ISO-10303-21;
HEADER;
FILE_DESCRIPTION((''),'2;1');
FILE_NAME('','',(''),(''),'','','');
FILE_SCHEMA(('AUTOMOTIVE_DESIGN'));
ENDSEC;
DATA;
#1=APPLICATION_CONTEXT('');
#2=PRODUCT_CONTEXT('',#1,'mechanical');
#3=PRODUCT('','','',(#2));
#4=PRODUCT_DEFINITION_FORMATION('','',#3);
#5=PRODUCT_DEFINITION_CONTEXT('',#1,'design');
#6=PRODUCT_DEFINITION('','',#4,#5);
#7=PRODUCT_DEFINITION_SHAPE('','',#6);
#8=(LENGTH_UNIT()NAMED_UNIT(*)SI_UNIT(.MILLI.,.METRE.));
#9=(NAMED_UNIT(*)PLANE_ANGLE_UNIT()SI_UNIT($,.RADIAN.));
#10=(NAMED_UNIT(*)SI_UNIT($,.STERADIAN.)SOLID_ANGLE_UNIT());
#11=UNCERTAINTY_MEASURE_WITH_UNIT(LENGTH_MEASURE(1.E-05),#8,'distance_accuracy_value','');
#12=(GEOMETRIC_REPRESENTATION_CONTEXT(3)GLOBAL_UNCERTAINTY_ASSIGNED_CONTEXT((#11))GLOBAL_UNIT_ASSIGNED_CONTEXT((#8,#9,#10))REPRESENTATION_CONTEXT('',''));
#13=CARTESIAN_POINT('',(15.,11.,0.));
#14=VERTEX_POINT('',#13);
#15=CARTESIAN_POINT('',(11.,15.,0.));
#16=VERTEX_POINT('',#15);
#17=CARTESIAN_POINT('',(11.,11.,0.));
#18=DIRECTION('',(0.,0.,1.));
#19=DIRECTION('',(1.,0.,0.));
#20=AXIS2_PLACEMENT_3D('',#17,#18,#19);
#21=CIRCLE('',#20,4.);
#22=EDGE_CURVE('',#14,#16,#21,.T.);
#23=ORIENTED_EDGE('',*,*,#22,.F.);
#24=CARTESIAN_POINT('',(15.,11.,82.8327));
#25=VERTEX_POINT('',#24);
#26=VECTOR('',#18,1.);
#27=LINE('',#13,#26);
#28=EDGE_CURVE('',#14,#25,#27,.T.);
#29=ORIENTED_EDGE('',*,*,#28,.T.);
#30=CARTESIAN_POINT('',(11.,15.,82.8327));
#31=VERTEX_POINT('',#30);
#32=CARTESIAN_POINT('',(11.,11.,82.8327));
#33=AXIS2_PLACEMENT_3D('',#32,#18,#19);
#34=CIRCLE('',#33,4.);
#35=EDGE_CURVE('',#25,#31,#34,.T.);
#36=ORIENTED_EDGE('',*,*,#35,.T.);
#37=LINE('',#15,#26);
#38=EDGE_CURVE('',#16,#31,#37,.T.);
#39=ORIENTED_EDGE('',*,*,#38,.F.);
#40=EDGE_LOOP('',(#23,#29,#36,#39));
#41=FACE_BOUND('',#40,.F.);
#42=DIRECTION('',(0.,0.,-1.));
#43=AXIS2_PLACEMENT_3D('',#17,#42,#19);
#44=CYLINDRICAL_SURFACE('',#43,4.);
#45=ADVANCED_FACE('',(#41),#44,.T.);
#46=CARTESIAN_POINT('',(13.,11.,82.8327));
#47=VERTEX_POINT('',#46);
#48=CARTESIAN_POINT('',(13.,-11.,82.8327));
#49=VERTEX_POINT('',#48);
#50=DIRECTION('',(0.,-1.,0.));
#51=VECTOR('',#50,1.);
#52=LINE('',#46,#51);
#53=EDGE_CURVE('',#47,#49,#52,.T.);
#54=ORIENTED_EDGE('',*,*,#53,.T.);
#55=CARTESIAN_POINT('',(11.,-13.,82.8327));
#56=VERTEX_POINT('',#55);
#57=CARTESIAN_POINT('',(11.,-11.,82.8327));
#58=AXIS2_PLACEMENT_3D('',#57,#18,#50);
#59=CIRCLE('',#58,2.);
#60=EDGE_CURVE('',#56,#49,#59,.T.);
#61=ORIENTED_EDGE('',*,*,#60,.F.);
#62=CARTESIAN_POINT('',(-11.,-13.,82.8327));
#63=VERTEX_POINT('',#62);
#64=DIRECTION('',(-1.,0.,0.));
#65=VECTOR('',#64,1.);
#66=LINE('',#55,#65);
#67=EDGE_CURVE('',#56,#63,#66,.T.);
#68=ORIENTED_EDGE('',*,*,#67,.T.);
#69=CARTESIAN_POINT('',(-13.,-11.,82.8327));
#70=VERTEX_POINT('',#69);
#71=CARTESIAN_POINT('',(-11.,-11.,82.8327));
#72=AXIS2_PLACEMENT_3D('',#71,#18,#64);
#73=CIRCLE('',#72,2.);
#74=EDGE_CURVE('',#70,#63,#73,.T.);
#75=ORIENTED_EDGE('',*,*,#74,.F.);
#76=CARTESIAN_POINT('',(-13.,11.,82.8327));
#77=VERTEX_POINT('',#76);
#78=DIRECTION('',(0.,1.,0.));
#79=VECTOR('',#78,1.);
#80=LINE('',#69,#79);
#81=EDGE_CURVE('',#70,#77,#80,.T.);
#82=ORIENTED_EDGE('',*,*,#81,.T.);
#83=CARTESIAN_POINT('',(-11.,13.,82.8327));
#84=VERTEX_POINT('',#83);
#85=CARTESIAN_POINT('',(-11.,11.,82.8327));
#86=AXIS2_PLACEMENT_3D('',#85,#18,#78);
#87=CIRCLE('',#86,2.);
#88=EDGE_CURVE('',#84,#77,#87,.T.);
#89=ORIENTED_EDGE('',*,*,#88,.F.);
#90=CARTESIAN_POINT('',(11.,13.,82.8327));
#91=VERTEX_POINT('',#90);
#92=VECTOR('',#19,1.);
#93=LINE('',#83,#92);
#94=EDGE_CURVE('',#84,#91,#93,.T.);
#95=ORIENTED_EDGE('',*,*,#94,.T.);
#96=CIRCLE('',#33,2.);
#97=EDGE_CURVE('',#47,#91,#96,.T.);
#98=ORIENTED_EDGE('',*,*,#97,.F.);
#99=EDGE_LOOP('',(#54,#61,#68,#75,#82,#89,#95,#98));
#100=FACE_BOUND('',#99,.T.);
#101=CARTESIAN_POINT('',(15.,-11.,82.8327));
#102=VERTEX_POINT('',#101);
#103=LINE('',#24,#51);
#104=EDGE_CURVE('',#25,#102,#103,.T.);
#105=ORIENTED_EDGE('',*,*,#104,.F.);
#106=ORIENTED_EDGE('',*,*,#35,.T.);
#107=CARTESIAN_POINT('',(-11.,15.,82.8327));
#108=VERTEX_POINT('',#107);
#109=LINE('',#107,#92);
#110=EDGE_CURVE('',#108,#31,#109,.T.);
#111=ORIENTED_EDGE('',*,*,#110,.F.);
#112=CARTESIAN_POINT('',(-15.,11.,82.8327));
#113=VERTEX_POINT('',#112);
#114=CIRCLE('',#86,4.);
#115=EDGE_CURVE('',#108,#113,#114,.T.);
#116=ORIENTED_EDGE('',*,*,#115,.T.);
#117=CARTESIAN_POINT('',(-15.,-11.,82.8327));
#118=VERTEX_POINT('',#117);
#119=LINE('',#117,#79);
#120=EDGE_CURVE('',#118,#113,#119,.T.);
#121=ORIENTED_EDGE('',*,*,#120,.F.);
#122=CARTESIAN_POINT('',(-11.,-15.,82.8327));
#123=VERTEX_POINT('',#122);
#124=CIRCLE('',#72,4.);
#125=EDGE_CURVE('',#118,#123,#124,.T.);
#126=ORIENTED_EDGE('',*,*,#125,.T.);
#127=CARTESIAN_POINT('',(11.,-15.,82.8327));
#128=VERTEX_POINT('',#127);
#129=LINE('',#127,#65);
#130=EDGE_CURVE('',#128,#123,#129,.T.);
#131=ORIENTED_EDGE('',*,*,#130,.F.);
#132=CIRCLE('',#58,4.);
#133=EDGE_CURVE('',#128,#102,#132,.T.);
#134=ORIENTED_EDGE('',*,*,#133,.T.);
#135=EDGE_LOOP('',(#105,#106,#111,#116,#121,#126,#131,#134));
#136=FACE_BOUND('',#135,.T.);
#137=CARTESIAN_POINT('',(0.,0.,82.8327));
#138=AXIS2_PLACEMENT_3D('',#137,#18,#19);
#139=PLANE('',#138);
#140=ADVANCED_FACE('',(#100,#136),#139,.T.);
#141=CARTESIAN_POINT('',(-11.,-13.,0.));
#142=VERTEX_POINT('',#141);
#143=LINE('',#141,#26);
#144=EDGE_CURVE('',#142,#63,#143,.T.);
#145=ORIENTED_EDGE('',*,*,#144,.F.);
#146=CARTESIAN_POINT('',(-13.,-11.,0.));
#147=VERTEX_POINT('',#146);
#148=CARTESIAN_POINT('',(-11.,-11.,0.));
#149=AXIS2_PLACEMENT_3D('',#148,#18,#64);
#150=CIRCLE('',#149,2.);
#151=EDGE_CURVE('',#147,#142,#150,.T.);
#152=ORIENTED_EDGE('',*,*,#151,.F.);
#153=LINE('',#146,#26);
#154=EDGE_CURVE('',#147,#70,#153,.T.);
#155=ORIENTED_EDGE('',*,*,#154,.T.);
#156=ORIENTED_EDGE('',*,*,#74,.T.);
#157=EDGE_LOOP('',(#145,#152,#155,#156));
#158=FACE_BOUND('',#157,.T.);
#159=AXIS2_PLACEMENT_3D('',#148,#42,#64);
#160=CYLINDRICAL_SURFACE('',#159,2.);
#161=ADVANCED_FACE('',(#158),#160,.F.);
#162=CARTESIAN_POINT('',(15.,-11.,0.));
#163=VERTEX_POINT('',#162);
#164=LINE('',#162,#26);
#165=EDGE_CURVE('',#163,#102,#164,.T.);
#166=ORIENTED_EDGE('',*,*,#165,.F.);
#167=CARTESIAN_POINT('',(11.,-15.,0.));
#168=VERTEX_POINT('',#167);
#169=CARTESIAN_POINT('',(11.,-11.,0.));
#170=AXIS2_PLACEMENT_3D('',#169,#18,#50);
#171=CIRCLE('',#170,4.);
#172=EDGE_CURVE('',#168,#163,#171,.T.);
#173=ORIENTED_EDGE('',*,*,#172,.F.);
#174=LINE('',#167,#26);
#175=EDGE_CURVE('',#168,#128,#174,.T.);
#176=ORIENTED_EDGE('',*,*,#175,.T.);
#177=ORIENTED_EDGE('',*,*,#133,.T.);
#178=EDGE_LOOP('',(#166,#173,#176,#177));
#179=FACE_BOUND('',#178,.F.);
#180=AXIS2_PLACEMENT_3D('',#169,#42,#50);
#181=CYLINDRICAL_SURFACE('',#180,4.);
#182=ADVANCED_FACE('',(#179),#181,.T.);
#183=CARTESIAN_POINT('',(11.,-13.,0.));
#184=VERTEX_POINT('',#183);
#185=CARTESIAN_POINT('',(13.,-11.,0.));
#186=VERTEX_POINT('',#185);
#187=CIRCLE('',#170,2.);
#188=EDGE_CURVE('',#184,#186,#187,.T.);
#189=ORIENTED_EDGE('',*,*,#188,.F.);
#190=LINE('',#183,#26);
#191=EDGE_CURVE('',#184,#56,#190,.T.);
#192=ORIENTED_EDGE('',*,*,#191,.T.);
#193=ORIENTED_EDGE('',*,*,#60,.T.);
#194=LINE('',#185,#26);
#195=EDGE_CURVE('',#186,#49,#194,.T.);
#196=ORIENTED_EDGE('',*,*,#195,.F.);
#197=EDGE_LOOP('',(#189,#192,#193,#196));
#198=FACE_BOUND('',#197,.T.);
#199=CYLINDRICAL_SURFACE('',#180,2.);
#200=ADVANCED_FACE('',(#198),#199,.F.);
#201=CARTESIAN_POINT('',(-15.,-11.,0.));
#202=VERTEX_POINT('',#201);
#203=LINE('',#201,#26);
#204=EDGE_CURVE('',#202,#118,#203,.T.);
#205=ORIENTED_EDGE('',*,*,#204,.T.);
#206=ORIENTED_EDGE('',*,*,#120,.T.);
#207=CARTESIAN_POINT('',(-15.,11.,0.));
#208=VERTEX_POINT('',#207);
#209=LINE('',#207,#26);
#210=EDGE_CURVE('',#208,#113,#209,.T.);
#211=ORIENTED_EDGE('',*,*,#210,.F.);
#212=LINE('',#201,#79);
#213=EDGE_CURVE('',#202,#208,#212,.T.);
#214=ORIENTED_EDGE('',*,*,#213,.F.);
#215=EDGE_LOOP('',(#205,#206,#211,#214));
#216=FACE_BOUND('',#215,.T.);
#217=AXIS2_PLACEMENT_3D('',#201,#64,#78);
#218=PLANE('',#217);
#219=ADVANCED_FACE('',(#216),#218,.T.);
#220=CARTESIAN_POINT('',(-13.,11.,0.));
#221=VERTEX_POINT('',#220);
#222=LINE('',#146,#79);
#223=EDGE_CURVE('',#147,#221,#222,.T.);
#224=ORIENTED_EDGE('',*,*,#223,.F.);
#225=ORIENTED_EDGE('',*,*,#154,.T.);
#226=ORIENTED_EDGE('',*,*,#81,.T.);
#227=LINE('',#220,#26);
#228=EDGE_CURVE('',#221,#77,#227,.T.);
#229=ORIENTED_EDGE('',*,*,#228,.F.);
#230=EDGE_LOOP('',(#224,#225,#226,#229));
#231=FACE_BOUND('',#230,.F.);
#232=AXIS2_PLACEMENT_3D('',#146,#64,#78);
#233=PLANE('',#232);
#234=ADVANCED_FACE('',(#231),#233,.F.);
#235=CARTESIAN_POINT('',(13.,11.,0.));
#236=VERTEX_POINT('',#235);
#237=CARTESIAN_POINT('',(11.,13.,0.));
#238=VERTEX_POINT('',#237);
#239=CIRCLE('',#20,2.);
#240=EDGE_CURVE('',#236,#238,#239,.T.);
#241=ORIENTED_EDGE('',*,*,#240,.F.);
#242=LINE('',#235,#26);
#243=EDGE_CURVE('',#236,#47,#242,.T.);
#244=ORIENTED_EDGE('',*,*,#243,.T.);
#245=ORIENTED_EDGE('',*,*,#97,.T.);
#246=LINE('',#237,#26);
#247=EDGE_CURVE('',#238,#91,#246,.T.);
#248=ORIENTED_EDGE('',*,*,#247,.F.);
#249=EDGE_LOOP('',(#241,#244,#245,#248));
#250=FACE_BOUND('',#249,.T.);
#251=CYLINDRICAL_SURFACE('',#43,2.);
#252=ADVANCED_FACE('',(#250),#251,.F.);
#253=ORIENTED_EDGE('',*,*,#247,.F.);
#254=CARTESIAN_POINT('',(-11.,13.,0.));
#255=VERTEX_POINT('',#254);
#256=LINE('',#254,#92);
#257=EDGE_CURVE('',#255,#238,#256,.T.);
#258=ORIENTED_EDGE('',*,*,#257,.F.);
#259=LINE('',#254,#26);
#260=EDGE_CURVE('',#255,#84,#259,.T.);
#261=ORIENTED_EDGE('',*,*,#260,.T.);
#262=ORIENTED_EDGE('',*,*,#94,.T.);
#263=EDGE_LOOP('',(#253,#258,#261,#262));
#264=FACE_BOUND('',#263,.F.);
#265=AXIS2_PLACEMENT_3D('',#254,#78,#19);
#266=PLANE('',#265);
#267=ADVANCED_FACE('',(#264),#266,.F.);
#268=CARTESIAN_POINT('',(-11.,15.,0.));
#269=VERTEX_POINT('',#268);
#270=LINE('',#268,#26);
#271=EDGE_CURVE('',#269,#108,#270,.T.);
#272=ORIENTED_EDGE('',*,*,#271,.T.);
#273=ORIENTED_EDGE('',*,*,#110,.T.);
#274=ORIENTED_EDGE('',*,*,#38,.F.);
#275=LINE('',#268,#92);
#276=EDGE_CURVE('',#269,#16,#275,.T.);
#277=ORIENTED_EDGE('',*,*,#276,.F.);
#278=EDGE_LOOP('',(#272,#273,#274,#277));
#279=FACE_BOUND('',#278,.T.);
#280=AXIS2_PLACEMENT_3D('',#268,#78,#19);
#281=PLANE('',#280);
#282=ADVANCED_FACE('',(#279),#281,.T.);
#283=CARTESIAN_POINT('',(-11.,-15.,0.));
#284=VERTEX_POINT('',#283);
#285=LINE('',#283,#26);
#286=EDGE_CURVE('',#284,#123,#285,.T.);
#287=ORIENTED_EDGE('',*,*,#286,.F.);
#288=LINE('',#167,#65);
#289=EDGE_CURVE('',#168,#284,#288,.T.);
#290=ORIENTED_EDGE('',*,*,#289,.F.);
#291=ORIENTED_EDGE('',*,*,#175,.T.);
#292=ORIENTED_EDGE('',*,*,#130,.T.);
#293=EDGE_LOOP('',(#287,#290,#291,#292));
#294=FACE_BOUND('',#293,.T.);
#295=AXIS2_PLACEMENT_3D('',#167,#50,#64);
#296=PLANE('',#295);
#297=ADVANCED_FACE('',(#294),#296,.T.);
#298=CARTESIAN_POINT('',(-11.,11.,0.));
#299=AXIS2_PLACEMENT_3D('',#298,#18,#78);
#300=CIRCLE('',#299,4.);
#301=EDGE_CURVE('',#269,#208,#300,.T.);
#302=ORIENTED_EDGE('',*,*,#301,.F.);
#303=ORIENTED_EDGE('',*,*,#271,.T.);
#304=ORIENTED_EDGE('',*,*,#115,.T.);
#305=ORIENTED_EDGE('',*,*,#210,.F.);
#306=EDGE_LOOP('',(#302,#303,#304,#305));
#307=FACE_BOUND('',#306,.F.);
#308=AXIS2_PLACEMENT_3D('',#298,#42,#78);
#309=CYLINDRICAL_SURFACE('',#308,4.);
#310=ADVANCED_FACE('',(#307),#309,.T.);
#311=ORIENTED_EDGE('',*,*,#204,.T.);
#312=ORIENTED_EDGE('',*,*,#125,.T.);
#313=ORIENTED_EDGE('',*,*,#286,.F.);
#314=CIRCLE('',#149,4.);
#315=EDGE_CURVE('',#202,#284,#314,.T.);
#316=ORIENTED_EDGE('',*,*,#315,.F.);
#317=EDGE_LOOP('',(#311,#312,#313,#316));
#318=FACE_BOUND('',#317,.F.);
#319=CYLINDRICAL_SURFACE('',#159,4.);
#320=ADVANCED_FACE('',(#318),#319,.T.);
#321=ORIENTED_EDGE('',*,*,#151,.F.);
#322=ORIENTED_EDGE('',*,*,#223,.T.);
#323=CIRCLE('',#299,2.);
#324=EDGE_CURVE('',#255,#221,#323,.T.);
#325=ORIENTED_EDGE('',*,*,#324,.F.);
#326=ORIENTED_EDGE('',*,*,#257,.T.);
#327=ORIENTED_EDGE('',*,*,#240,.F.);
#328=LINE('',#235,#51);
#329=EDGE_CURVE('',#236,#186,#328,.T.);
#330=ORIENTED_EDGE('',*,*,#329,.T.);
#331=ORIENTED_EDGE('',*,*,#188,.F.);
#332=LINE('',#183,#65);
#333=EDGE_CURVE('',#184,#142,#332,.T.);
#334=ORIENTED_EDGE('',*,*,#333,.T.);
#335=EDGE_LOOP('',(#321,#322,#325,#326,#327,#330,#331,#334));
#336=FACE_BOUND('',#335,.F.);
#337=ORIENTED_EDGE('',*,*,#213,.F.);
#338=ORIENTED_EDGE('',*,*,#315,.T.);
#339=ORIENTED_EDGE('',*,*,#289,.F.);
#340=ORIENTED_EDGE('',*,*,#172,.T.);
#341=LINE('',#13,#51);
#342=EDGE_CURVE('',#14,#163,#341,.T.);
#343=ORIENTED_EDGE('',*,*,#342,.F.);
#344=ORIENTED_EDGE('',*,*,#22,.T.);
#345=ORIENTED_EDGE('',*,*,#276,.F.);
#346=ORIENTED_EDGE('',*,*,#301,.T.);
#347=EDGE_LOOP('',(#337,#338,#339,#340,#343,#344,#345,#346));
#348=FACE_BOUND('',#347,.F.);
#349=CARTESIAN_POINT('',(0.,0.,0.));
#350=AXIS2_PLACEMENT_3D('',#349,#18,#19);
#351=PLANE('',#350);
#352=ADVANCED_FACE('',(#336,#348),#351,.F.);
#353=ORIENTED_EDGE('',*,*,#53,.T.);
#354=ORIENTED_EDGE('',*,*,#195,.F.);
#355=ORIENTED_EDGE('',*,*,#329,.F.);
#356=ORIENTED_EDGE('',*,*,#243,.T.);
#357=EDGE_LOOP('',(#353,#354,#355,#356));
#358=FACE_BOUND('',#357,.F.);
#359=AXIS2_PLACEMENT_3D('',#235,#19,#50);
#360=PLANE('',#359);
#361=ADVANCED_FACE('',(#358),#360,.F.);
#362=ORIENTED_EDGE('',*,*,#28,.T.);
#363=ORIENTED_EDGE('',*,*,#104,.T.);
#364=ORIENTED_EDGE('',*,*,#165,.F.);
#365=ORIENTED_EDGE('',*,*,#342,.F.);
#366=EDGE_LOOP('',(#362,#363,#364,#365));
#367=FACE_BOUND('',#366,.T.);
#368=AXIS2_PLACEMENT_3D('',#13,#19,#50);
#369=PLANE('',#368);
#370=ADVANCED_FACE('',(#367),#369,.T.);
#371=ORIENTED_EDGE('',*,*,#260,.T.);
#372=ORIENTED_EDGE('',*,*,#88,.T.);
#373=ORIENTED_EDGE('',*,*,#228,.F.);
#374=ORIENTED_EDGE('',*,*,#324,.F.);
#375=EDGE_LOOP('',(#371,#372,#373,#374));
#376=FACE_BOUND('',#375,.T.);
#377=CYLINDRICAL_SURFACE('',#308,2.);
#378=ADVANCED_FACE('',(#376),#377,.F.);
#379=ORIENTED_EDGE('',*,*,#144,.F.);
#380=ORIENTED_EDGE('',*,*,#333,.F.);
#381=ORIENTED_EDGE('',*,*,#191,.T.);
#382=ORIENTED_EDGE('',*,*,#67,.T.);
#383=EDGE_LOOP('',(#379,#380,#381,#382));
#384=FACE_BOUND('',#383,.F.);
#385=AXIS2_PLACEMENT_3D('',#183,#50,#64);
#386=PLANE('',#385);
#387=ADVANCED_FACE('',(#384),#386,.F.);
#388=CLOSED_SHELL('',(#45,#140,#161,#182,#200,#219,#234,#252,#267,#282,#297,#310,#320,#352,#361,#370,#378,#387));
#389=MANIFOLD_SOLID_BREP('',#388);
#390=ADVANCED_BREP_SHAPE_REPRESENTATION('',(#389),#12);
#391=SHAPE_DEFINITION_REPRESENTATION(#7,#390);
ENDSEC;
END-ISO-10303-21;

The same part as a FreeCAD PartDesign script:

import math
import FreeCAD as App
import Part
import Sketcher
Q = App.Units.Quantity

doc = App.newDocument("Part")
params = doc.addObject("Spreadsheet::Sheet", "Params")
for row, (alias, value) in enumerate([
    ("sketch1_radius", "4 mm"),
    ("sketch1_radius2", "2 mm"),
    ("pad1_length", "82.8327 mm"),
], start=1):
    params.set(f"A{row}", alias)
    params.set(f"B{row}", "=" + value)
    params.setAlias(f"B{row}", alias)

body = doc.addObject("PartDesign::Body", "Body")

sketch1 = body.newObject("Sketcher::SketchObject", "Sketch")
sketch1.AttachmentSupport = (doc.getObject("XY_Plane"), [""])
sketch1.MapMode = "FlatFace"
sketch1.addGeometry([
    Part.LineSegment(App.Vector(-15, 11, 0), App.Vector(-15, -11, 0)),
    Part.ArcOfCircle(Part.Circle(App.Vector(-11, -11, 0), App.Vector(0, 0, 1), 4), math.radians(180), math.radians(270)),
    Part.LineSegment(App.Vector(-11, -15, 0), App.Vector(11, -15, 0)),
    Part.ArcOfCircle(Part.Circle(App.Vector(11, -11, 0), App.Vector(0, 0, 1), 4), math.radians(-90), math.radians(0)),
    Part.LineSegment(App.Vector(15, -11, 0), App.Vector(15, 11, 0)),
    Part.ArcOfCircle(Part.Circle(App.Vector(11, 11, 0), App.Vector(0, 0, 1), 4), math.radians(0), math.radians(90)),
    Part.LineSegment(App.Vector(11, 15, 0), App.Vector(-11, 15, 0)),
    Part.ArcOfCircle(Part.Circle(App.Vector(-11, 11, 0), App.Vector(0, 0, 1), 4), math.radians(90), math.radians(180)),
    Part.ArcOfCircle(Part.Circle(App.Vector(-11, 11, 0), App.Vector(0, 0, 1), 2), math.radians(90), math.radians(180)),
    Part.LineSegment(App.Vector(-11, 13, 0), App.Vector(11, 13, 0)),
    Part.ArcOfCircle(Part.Circle(App.Vector(11, 11, 0), App.Vector(0, 0, 1), 2), math.radians(0), math.radians(90)),
    Part.LineSegment(App.Vector(13, 11, 0), App.Vector(13, -11, 0)),
    Part.ArcOfCircle(Part.Circle(App.Vector(11, -11, 0), App.Vector(0, 0, 1), 2), math.radians(-90), math.radians(0)),
    Part.LineSegment(App.Vector(11, -13, 0), App.Vector(-11, -13, 0)),
    Part.ArcOfCircle(Part.Circle(App.Vector(-11, -11, 0), App.Vector(0, 0, 1), 2), math.radians(180), math.radians(270)),
    Part.LineSegment(App.Vector(-13, -11, 0), App.Vector(-13, 11, 0)),
], False)
sketch1.addConstraint([
    Sketcher.Constraint("Tangent", 0, 2, 1, 1),
    Sketcher.Constraint("Tangent", 1, 2, 2, 1),
    Sketcher.Constraint("Tangent", 2, 2, 3, 1),
    Sketcher.Constraint("Tangent", 3, 2, 4, 1),
    Sketcher.Constraint("Tangent", 4, 2, 5, 1),
    Sketcher.Constraint("Tangent", 5, 2, 6, 1),
    Sketcher.Constraint("Tangent", 6, 2, 7, 1),
    Sketcher.Constraint("Tangent", 7, 2, 0, 1),
    Sketcher.Constraint("Tangent", 8, 1, 9, 1),
    Sketcher.Constraint("Tangent", 9, 2, 10, 2),
    Sketcher.Constraint("Tangent", 10, 1, 11, 1),
    Sketcher.Constraint("Tangent", 11, 2, 12, 2),
    Sketcher.Constraint("Tangent", 12, 1, 13, 1),
    Sketcher.Constraint("Tangent", 13, 2, 14, 2),
    Sketcher.Constraint("Tangent", 14, 1, 15, 1),
    Sketcher.Constraint("Tangent", 15, 2, 8, 2),
    Sketcher.Constraint("Vertical", 0),
    Sketcher.Constraint("Horizontal", 2),
    Sketcher.Constraint("Vertical", 4),
    Sketcher.Constraint("Horizontal", 6),
    Sketcher.Constraint("Horizontal", 9),
    Sketcher.Constraint("Vertical", 11),
    Sketcher.Constraint("Horizontal", 13),
    Sketcher.Constraint("Vertical", 15),
    Sketcher.Constraint("Coincident", 8, 3, 7, 3),
    Sketcher.Constraint("Coincident", 10, 3, 5, 3),
    Sketcher.Constraint("Coincident", 12, 3, 3, 3),
    Sketcher.Constraint("Equal", 1, 3),
    Sketcher.Constraint("Equal", 3, 5),
    Sketcher.Constraint("Equal", 5, 7),
    Sketcher.Constraint("Equal", 12, 14),
    Sketcher.Constraint("Symmetric", 1, 3, 5, 3, -1, 1),
    Sketcher.Constraint("Equal", 13, 0),
    Sketcher.Constraint("Radius", 1, Q("4 mm")),
    Sketcher.Constraint("Radius", 8, Q("2 mm")),
    Sketcher.Constraint("DistanceX", 0, 2, -1, 1, Q("15 mm")),
])
sketch1.setExpression("Constraints[33]", "Params.sketch1_radius")
sketch1.setExpression("Constraints[34]", "Params.sketch1_radius2")
pad1 = body.newObject("PartDesign::Pad", "Pad")
pad1.Profile = sketch1
pad1.setExpression("Length", "Params.pad1_length")

doc.recompute()
